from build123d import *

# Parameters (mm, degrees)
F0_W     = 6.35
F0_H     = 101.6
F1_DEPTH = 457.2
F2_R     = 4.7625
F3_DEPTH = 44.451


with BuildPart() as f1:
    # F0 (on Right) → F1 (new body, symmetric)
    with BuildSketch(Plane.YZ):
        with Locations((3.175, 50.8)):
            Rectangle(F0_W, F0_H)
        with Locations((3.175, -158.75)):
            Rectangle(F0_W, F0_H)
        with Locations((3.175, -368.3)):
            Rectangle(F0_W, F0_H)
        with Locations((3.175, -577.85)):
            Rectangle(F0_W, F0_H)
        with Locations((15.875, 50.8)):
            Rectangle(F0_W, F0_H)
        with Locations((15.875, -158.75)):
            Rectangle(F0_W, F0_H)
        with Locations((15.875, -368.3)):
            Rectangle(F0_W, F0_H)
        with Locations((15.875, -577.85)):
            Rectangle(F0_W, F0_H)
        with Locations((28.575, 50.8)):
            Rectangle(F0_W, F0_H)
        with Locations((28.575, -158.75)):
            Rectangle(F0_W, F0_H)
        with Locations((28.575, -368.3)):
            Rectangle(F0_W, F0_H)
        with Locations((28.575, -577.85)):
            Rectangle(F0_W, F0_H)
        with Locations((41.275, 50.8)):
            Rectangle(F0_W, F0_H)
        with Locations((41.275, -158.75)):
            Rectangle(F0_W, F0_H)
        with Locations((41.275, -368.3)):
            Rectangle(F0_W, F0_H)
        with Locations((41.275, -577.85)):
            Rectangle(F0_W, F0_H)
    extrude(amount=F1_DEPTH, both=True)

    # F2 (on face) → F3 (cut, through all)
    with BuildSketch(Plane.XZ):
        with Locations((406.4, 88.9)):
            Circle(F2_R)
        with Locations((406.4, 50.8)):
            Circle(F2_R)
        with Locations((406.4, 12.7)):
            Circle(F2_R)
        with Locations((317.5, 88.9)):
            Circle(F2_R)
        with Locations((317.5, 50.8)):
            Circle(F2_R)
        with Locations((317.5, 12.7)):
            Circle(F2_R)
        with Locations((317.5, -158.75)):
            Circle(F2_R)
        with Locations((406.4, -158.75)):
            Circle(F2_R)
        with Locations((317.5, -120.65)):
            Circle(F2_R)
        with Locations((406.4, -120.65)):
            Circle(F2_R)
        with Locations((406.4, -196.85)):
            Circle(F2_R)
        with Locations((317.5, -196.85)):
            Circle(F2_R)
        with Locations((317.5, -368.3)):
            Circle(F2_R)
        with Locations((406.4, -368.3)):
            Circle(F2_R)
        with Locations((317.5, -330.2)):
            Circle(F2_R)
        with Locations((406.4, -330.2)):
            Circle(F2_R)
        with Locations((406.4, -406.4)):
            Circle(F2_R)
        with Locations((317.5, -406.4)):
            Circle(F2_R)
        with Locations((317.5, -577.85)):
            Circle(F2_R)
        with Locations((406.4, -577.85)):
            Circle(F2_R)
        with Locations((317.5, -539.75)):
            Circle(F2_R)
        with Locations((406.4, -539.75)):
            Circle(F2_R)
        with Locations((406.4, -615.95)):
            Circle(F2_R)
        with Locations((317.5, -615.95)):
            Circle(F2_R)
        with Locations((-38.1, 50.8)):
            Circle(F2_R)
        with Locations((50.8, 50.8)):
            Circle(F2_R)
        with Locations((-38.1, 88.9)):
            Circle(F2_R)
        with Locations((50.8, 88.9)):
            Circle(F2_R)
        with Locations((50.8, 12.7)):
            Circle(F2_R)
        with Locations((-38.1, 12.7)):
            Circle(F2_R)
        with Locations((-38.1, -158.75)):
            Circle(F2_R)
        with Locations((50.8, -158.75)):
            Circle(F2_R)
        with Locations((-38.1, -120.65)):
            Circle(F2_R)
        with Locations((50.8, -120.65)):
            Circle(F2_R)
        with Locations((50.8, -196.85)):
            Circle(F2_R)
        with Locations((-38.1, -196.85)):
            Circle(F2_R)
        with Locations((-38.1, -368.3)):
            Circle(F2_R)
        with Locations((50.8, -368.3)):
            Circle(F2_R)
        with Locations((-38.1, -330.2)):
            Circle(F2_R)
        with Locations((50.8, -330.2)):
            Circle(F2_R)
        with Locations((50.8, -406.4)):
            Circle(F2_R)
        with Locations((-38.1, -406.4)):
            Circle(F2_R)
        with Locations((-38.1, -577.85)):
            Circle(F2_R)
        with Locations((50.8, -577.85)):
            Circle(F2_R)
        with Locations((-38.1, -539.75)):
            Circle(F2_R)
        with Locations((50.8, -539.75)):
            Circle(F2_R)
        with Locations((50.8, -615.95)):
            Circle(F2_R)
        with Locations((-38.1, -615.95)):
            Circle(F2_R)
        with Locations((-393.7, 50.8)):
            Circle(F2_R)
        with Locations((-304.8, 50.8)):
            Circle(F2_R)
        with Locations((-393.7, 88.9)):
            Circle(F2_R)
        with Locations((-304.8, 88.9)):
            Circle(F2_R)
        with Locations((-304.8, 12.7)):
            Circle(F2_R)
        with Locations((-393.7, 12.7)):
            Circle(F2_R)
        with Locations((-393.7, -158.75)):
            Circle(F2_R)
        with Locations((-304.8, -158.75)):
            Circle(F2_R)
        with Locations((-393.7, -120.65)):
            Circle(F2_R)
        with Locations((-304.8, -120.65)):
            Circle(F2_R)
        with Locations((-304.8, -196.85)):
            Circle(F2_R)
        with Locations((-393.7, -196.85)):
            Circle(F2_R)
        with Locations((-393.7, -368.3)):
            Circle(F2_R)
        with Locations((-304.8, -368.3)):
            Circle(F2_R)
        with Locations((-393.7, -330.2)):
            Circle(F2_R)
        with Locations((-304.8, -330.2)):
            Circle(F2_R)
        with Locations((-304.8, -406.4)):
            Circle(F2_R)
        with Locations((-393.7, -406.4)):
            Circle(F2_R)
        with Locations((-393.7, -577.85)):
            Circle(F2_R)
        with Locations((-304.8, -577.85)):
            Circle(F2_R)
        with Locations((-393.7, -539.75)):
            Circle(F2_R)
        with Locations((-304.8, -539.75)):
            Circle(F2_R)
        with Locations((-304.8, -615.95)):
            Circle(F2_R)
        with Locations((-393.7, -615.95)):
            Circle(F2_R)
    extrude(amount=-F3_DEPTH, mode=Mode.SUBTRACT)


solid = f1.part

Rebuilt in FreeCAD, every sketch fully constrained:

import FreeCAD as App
import Part
import Sketcher

V = App.Vector
Q = App.Units.Quantity

doc = App.newDocument("Part")
body = doc.addObject("PartDesign::Body", "Body")
body.AllowCompound = True

sketch1 = doc.addObject("Sketcher::SketchObject", "Sketch")
body.addObject(sketch1)
sketch1.AttachmentSupport = (doc.YZ_Plane, [""])
sketch1.MapMode = "FlatFace"
sketch1.addGeometry(Part.LineSegment(V(0, 102, 0), V(0, 0, 0)), False)
sketch1.addGeometry(Part.LineSegment(V(0, 0, 0), V(6, 0, 0)), False)
sketch1.addGeometry(Part.LineSegment(V(6, 0, 0), V(6, 102, 0)), False)
sketch1.addGeometry(Part.LineSegment(V(6, 102, 0), V(0, 102, 0)), False)
sketch1.addGeometry(Part.LineSegment(V(0, -108, 0), V(0, -210, 0)), False)
sketch1.addGeometry(Part.LineSegment(V(0, -210, 0), V(6, -210, 0)), False)
sketch1.addGeometry(Part.LineSegment(V(6, -210, 0), V(6, -108, 0)), False)
sketch1.addGeometry(Part.LineSegment(V(6, -108, 0), V(0, -108, 0)), False)
sketch1.addGeometry(Part.LineSegment(V(0, -318, 0), V(0, -419, 0)), False)
sketch1.addGeometry(Part.LineSegment(V(0, -419, 0), V(6, -419, 0)), False)
sketch1.addGeometry(Part.LineSegment(V(6, -419, 0), V(6, -318, 0)), False)
sketch1.addGeometry(Part.LineSegment(V(6, -318, 0), V(0, -318, 0)), False)
sketch1.addGeometry(Part.LineSegment(V(0, -527, 0), V(0, -629, 0)), False)
sketch1.addGeometry(Part.LineSegment(V(0, -629, 0), V(6, -629, 0)), False)
sketch1.addGeometry(Part.LineSegment(V(6, -629, 0), V(6, -527, 0)), False)
sketch1.addGeometry(Part.LineSegment(V(6, -527, 0), V(0, -527, 0)), False)
sketch1.addGeometry(Part.LineSegment(V(13, 102, 0), V(13, 0, 0)), False)
sketch1.addGeometry(Part.LineSegment(V(13, 0, 0), V(19, 0, 0)), False)
sketch1.addGeometry(Part.LineSegment(V(19, 0, 0), V(19, 102, 0)), False)
sketch1.addGeometry(Part.LineSegment(V(19, 102, 0), V(13, 102, 0)), False)
sketch1.addGeometry(Part.LineSegment(V(13, -108, 0), V(13, -210, 0)), False)
sketch1.addGeometry(Part.LineSegment(V(13, -210, 0), V(19, -210, 0)), False)
sketch1.addGeometry(Part.LineSegment(V(19, -210, 0), V(19, -108, 0)), False)
sketch1.addGeometry(Part.LineSegment(V(19, -108, 0), V(13, -108, 0)), False)
sketch1.addGeometry(Part.LineSegment(V(13, -318, 0), V(13, -419, 0)), False)
sketch1.addGeometry(Part.LineSegment(V(13, -419, 0), V(19, -419, 0)), False)
sketch1.addGeometry(Part.LineSegment(V(19, -419, 0), V(19, -318, 0)), False)
sketch1.addGeometry(Part.LineSegment(V(19, -318, 0), V(13, -318, 0)), False)
sketch1.addGeometry(Part.LineSegment(V(13, -527, 0), V(13, -629, 0)), False)
sketch1.addGeometry(Part.LineSegment(V(13, -629, 0), V(19, -629, 0)), False)
sketch1.addGeometry(Part.LineSegment(V(19, -629, 0), V(19, -527, 0)), False)
sketch1.addGeometry(Part.LineSegment(V(19, -527, 0), V(13, -527, 0)), False)
sketch1.addGeometry(Part.LineSegment(V(25, 102, 0), V(25, 0, 0)), False)
sketch1.addGeometry(Part.LineSegment(V(25, 0, 0), V(32, 0, 0)), False)
sketch1.addGeometry(Part.LineSegment(V(32, 0, 0), V(32, 102, 0)), False)
sketch1.addGeometry(Part.LineSegment(V(32, 102, 0), V(25, 102, 0)), False)
sketch1.addGeometry(Part.LineSegment(V(25, -108, 0), V(25, -210, 0)), False)
sketch1.addGeometry(Part.LineSegment(V(25, -210, 0), V(32, -210, 0)), False)
sketch1.addGeometry(Part.LineSegment(V(32, -210, 0), V(32, -108, 0)), False)
sketch1.addGeometry(Part.LineSegment(V(32, -108, 0), V(25, -108, 0)), False)
sketch1.addGeometry(Part.LineSegment(V(25, -318, 0), V(25, -419, 0)), False)
sketch1.addGeometry(Part.LineSegment(V(25, -419, 0), V(32, -419, 0)), False)
sketch1.addGeometry(Part.LineSegment(V(32, -419, 0), V(32, -318, 0)), False)
sketch1.addGeometry(Part.LineSegment(V(32, -318, 0), V(25, -318, 0)), False)
sketch1.addGeometry(Part.LineSegment(V(25, -527, 0), V(25, -629, 0)), False)
sketch1.addGeometry(Part.LineSegment(V(25, -629, 0), V(32, -629, 0)), False)
sketch1.addGeometry(Part.LineSegment(V(32, -629, 0), V(32, -527, 0)), False)
sketch1.addGeometry(Part.LineSegment(V(32, -527, 0), V(25, -527, 0)), False)
sketch1.addGeometry(Part.LineSegment(V(38, 102, 0), V(38, 0, 0)), False)
sketch1.addGeometry(Part.LineSegment(V(38, 0, 0), V(44, 0, 0)), False)
sketch1.addGeometry(Part.LineSegment(V(44, 0, 0), V(44, 102, 0)), False)
sketch1.addGeometry(Part.LineSegment(V(44, 102, 0), V(38, 102, 0)), False)
sketch1.addGeometry(Part.LineSegment(V(38, -108, 0), V(38, -210, 0)), False)
sketch1.addGeometry(Part.LineSegment(V(38, -210, 0), V(44, -210, 0)), False)
sketch1.addGeometry(Part.LineSegment(V(44, -210, 0), V(44, -108, 0)), False)
sketch1.addGeometry(Part.LineSegment(V(44, -108, 0), V(38, -108, 0)), False)
sketch1.addGeometry(Part.LineSegment(V(38, -318, 0), V(38, -419, 0)), False)
sketch1.addGeometry(Part.LineSegment(V(38, -419, 0), V(44, -419, 0)), False)
sketch1.addGeometry(Part.LineSegment(V(44, -419, 0), V(44, -318, 0)), False)
sketch1.addGeometry(Part.LineSegment(V(44, -318, 0), V(38, -318, 0)), False)
sketch1.addGeometry(Part.LineSegment(V(38, -527, 0), V(38, -629, 0)), False)
sketch1.addGeometry(Part.LineSegment(V(38, -629, 0), V(44, -629, 0)), False)
sketch1.addGeometry(Part.LineSegment(V(44, -629, 0), V(44, -527, 0)), False)
sketch1.addGeometry(Part.LineSegment(V(44, -527, 0), V(38, -527, 0)), False)
sketch1.addConstraint(Sketcher.Constraint("Coincident", 0, 2, 1, 1))
sketch1.addConstraint(Sketcher.Constraint("Coincident", 1, 2, 2, 1))
sketch1.addConstraint(Sketcher.Constraint("Coincident", 2, 2, 3, 1))
sketch1.addConstraint(Sketcher.Constraint("Coincident", 3, 2, 0, 1))
sketch1.addConstraint(Sketcher.Constraint("Coincident", 4, 2, 5, 1))
sketch1.addConstraint(Sketcher.Constraint("Coincident", 5, 2, 6, 1))
sketch1.addConstraint(Sketcher.Constraint("Coincident", 6, 2, 7, 1))
sketch1.addConstraint(Sketcher.Constraint("Coincident", 7, 2, 4, 1))
sketch1.addConstraint(Sketcher.Constraint("Coincident", 8, 2, 9, 1))
sketch1.addConstraint(Sketcher.Constraint("Coincident", 9, 2, 10, 1))
sketch1.addConstraint(Sketcher.Constraint("Coincident", 10, 2, 11, 1))
sketch1.addConstraint(Sketcher.Constraint("Coincident", 11, 2, 8, 1))
sketch1.addConstraint(Sketcher.Constraint("Coincident", 12, 2, 13, 1))
sketch1.addConstraint(Sketcher.Constraint("Coincident", 13, 2, 14, 1))
sketch1.addConstraint(Sketcher.Constraint("Coincident", 14, 2, 15, 1))
sketch1.addConstraint(Sketcher.Constraint("Coincident", 15, 2, 12, 1))
sketch1.addConstraint(Sketcher.Constraint("Coincident", 16, 2, 17, 1))
sketch1.addConstraint(Sketcher.Constraint("Coincident", 17, 2, 18, 1))
sketch1.addConstraint(Sketcher.Constraint("Coincident", 18, 2, 19, 1))
sketch1.addConstraint(Sketcher.Constraint("Coincident", 19, 2, 16, 1))
sketch1.addConstraint(Sketcher.Constraint("Coincident", 20, 2, 21, 1))
sketch1.addConstraint(Sketcher.Constraint("Coincident", 21, 2, 22, 1))
sketch1.addConstraint(Sketcher.Constraint("Coincident", 22, 2, 23, 1))
sketch1.addConstraint(Sketcher.Constraint("Coincident", 23, 2, 20, 1))
sketch1.addConstraint(Sketcher.Constraint("Coincident", 24, 2, 25, 1))
sketch1.addConstraint(Sketcher.Constraint("Coincident", 25, 2, 26, 1))
sketch1.addConstraint(Sketcher.Constraint("Coincident", 26, 2, 27, 1))
sketch1.addConstraint(Sketcher.Constraint("Coincident", 27, 2, 24, 1))
sketch1.addConstraint(Sketcher.Constraint("Coincident", 28, 2, 29, 1))
sketch1.addConstraint(Sketcher.Constraint("Coincident", 29, 2, 30, 1))
sketch1.addConstraint(Sketcher.Constraint("Coincident", 30, 2, 31, 1))
sketch1.addConstraint(Sketcher.Constraint("Coincident", 31, 2, 28, 1))
sketch1.addConstraint(Sketcher.Constraint("Coincident", 32, 2, 33, 1))
sketch1.addConstraint(Sketcher.Constraint("Coincident", 33, 2, 34, 1))
sketch1.addConstraint(Sketcher.Constraint("Coincident", 34, 2, 35, 1))
sketch1.addConstraint(Sketcher.Constraint("Coincident", 35, 2, 32, 1))
sketch1.addConstraint(Sketcher.Constraint("Coincident", 36, 2, 37, 1))
sketch1.addConstraint(Sketcher.Constraint("Coincident", 37, 2, 38, 1))
sketch1.addConstraint(Sketcher.Constraint("Coincident", 38, 2, 39, 1))
sketch1.addConstraint(Sketcher.Constraint("Coincident", 39, 2, 36, 1))
sketch1.addConstraint(Sketcher.Constraint("Coincident", 40, 2, 41, 1))
sketch1.addConstraint(Sketcher.Constraint("Coincident", 41, 2, 42, 1))
sketch1.addConstraint(Sketcher.Constraint("Coincident", 42, 2, 43, 1))
sketch1.addConstraint(Sketcher.Constraint("Coincident", 43, 2, 40, 1))
sketch1.addConstraint(Sketcher.Constraint("Coincident", 44, 2, 45, 1))
sketch1.addConstraint(Sketcher.Constraint("Coincident", 45, 2, 46, 1))
sketch1.addConstraint(Sketcher.Constraint("Coincident", 46, 2, 47, 1))
sketch1.addConstraint(Sketcher.Constraint("Coincident", 47, 2, 44, 1))
sketch1.addConstraint(Sketcher.Constraint("Coincident", 48, 2, 49, 1))
sketch1.addConstraint(Sketcher.Constraint("Coincident", 49, 2, 50, 1))
sketch1.addConstraint(Sketcher.Constraint("Coincident", 50, 2, 51, 1))
sketch1.addConstraint(Sketcher.Constraint("Coincident", 51, 2, 48, 1))
sketch1.addConstraint(Sketcher.Constraint("Coincident", 52, 2, 53, 1))
sketch1.addConstraint(Sketcher.Constraint("Coincident", 53, 2, 54, 1))
sketch1.addConstraint(Sketcher.Constraint("Coincident", 54, 2, 55, 1))
sketch1.addConstraint(Sketcher.Constraint("Coincident", 55, 2, 52, 1))
sketch1.addConstraint(Sketcher.Constraint("Coincident", 56, 2, 57, 1))
sketch1.addConstraint(Sketcher.Constraint("Coincident", 57, 2, 58, 1))
sketch1.addConstraint(Sketcher.Constraint("Coincident", 58, 2, 59, 1))
sketch1.addConstraint(Sketcher.Constraint("Coincident", 59, 2, 56, 1))
sketch1.addConstraint(Sketcher.Constraint("Coincident", 60, 2, 61, 1))
sketch1.addConstraint(Sketcher.Constraint("Coincident", 61, 2, 62, 1))
sketch1.addConstraint(Sketcher.Constraint("Coincident", 62, 2, 63, 1))
sketch1.addConstraint(Sketcher.Constraint("Coincident", 63, 2, 60, 1))
sketch1.addConstraint(Sketcher.Constraint("Vertical", 0))
sketch1.addConstraint(Sketcher.Constraint("Horizontal", 1))
sketch1.addConstraint(Sketcher.Constraint("Vertical", 2))
sketch1.addConstraint(Sketcher.Constraint("Horizontal", 3))
sketch1.addConstraint(Sketcher.Constraint("Vertical", 4))
sketch1.addConstraint(Sketcher.Constraint("Horizontal", 5))
sketch1.addConstraint(Sketcher.Constraint("Vertical", 6))
sketch1.addConstraint(Sketcher.Constraint("Horizontal", 7))
sketch1.addConstraint(Sketcher.Constraint("Vertical", 8))
sketch1.addConstraint(Sketcher.Constraint("Horizontal", 9))
sketch1.addConstraint(Sketcher.Constraint("Vertical", 10))
sketch1.addConstraint(Sketcher.Constraint("Horizontal", 11))
sketch1.addConstraint(Sketcher.Constraint("Vertical", 12))
sketch1.addConstraint(Sketcher.Constraint("Horizontal", 13))
sketch1.addConstraint(Sketcher.Constraint("Vertical", 14))
sketch1.addConstraint(Sketcher.Constraint("Horizontal", 15))
sketch1.addConstraint(Sketcher.Constraint("Vertical", 16))
sketch1.addConstraint(Sketcher.Constraint("Horizontal", 17))
sketch1.addConstraint(Sketcher.Constraint("Vertical", 18))
sketch1.addConstraint(Sketcher.Constraint("Horizontal", 19))
sketch1.addConstraint(Sketcher.Constraint("Vertical", 20))
sketch1.addConstraint(Sketcher.Constraint("Horizontal", 21))
sketch1.addConstraint(Sketcher.Constraint("Vertical", 22))
sketch1.addConstraint(Sketcher.Constraint("Horizontal", 23))
sketch1.addConstraint(Sketcher.Constraint("Vertical", 24))
sketch1.addConstraint(Sketcher.Constraint("Horizontal", 25))
sketch1.addConstraint(Sketcher.Constraint("Vertical", 26))
sketch1.addConstraint(Sketcher.Constraint("Horizontal", 27))
sketch1.addConstraint(Sketcher.Constraint("Vertical", 28))
sketch1.addConstraint(Sketcher.Constraint("Horizontal", 29))
sketch1.addConstraint(Sketcher.Constraint("Vertical", 30))
sketch1.addConstraint(Sketcher.Constraint("Horizontal", 31))
sketch1.addConstraint(Sketcher.Constraint("Vertical", 32))
sketch1.addConstraint(Sketcher.Constraint("Horizontal", 33))
sketch1.addConstraint(Sketcher.Constraint("Vertical", 34))
sketch1.addConstraint(Sketcher.Constraint("Horizontal", 35))
sketch1.addConstraint(Sketcher.Constraint("Vertical", 36))
sketch1.addConstraint(Sketcher.Constraint("Horizontal", 37))
sketch1.addConstraint(Sketcher.Constraint("Vertical", 38))
sketch1.addConstraint(Sketcher.Constraint("Horizontal", 39))
sketch1.addConstraint(Sketcher.Constraint("Vertical", 40))
sketch1.addConstraint(Sketcher.Constraint("Horizontal", 41))
sketch1.addConstraint(Sketcher.Constraint("Vertical", 42))
sketch1.addConstraint(Sketcher.Constraint("Horizontal", 43))
sketch1.addConstraint(Sketcher.Constraint("Vertical", 44))
sketch1.addConstraint(Sketcher.Constraint("Horizontal", 45))
sketch1.addConstraint(Sketcher.Constraint("Vertical", 46))
sketch1.addConstraint(Sketcher.Constraint("Horizontal", 47))
sketch1.addConstraint(Sketcher.Constraint("Vertical", 48))
sketch1.addConstraint(Sketcher.Constraint("Horizontal", 49))
sketch1.addConstraint(Sketcher.Constraint("Vertical", 50))
sketch1.addConstraint(Sketcher.Constraint("Horizontal", 51))
sketch1.addConstraint(Sketcher.Constraint("Vertical", 52))
sketch1.addConstraint(Sketcher.Constraint("Horizontal", 53))
sketch1.addConstraint(Sketcher.Constraint("Vertical", 54))
sketch1.addConstraint(Sketcher.Constraint("Horizontal", 55))
sketch1.addConstraint(Sketcher.Constraint("Vertical", 56))
sketch1.addConstraint(Sketcher.Constraint("Horizontal", 57))
sketch1.addConstraint(Sketcher.Constraint("Vertical", 58))
sketch1.addConstraint(Sketcher.Constraint("Horizontal", 59))
sketch1.addConstraint(Sketcher.Constraint("Vertical", 60))
sketch1.addConstraint(Sketcher.Constraint("Horizontal", 61))
sketch1.addConstraint(Sketcher.Constraint("Vertical", 62))
sketch1.addConstraint(Sketcher.Constraint("Horizontal", 63))
sketch1.addConstraint(Sketcher.Constraint("Coincident", 0, 2, -1, 1))
sketch1.addConstraint(Sketcher.Constraint("PointOnObject", 4, 2, -2))
sketch1.addConstraint(Sketcher.Constraint("PointOnObject", 8, 2, -2))
sketch1.addConstraint(Sketcher.Constraint("PointOnObject", 12, 2, -2))
sketch1.addConstraint(Sketcher.Constraint("PointOnObject", 16, 2, -1))
sketch1.addConstraint(Sketcher.Constraint("PointOnObject", 32, 2, -1))
sketch1.addConstraint(Sketcher.Constraint("PointOnObject", 48, 2, -1))
sketch1.addConstraint(Sketcher.Constraint("Horizontal", 3, 2, 18, 2))
sketch1.addConstraint(Sketcher.Constraint("Horizontal", 5, 2, 20, 2))
sketch1.addConstraint(Sketcher.Constraint("Horizontal", 7, 2, 22, 2))
sketch1.addConstraint(Sketcher.Constraint("Horizontal", 9, 2, 24, 2))
sketch1.addConstraint(Sketcher.Constraint("Horizontal", 11, 2, 26, 2))
sketch1.addConstraint(Sketcher.Constraint("Horizontal", 13, 2, 28, 2))
sketch1.addConstraint(Sketcher.Constraint("Horizontal", 15, 2, 30, 2))
sketch1.addConstraint(Sketcher.Constraint("Horizontal", 19, 2, 34, 2))
sketch1.addConstraint(Sketcher.Constraint("Horizontal", 21, 2, 36, 2))
sketch1.addConstraint(Sketcher.Constraint("Horizontal", 23, 2, 38, 2))
sketch1.addConstraint(Sketcher.Constraint("Horizontal", 25, 2, 40, 2))
sketch1.addConstraint(Sketcher.Constraint("Horizontal", 27, 2, 42, 2))
sketch1.addConstraint(Sketcher.Constraint("Horizontal", 29, 2, 44, 2))
sketch1.addConstraint(Sketcher.Constraint("Horizontal", 31, 2, 46, 2))
sketch1.addConstraint(Sketcher.Constraint("Horizontal", 35, 2, 50, 2))
sketch1.addConstraint(Sketcher.Constraint("Horizontal", 37, 2, 52, 2))
sketch1.addConstraint(Sketcher.Constraint("Horizontal", 39, 2, 54, 2))
sketch1.addConstraint(Sketcher.Constraint("Horizontal", 41, 2, 56, 2))
sketch1.addConstraint(Sketcher.Constraint("Horizontal", 43, 2, 58, 2))
sketch1.addConstraint(Sketcher.Constraint("Horizontal", 45, 2, 60, 2))
sketch1.addConstraint(Sketcher.Constraint("Horizontal", 47, 2, 62, 2))
sketch1.addConstraint(Sketcher.Constraint("Vertical", 2, 2, 5, 2))
sketch1.addConstraint(Sketcher.Constraint("Vertical", 6, 2, 9, 2))
sketch1.addConstraint(Sketcher.Constraint("Vertical", 10, 2, 13, 2))
sketch1.addConstraint(Sketcher.Constraint("Vertical", 19, 2, 20, 2))
sketch1.addConstraint(Sketcher.Constraint("Vertical", 18, 2, 21, 2))
sketch1.addConstraint(Sketcher.Constraint("Vertical", 23, 2, 24, 2))
sketch1.addConstraint(Sketcher.Constraint("Vertical", 22, 2, 25, 2))
sketch1.addConstraint(Sketcher.Constraint("Vertical", 27, 2, 28, 2))
sketch1.addConstraint(Sketcher.Constraint("Vertical", 26, 2, 29, 2))
sketch1.addConstraint(Sketcher.Constraint("Vertical", 35, 2, 36, 2))
sketch1.addConstraint(Sketcher.Constraint("Vertical", 34, 2, 37, 2))
sketch1.addConstraint(Sketcher.Constraint("Vertical", 39, 2, 40, 2))
sketch1.addConstraint(Sketcher.Constraint("Vertical", 38, 2, 41, 2))
sketch1.addConstraint(Sketcher.Constraint("Vertical", 43, 2, 44, 2))
sketch1.addConstraint(Sketcher.Constraint("Vertical", 42, 2, 45, 2))
sketch1.addConstraint(Sketcher.Constraint("Vertical", 51, 2, 52, 2))
sketch1.addConstraint(Sketcher.Constraint("Vertical", 50, 2, 53, 2))
sketch1.addConstraint(Sketcher.Constraint("Vertical", 55, 2, 56, 2))
sketch1.addConstraint(Sketcher.Constraint("Vertical", 54, 2, 57, 2))
sketch1.addConstraint(Sketcher.Constraint("Vertical", 59, 2, 60, 2))
sketch1.addConstraint(Sketcher.Constraint("Vertical", 58, 2, 61, 2))
sketch1.addConstraint(Sketcher.Constraint("Equal", 15, 17))
sketch1.addConstraint(Sketcher.Constraint("Equal", 31, 33))
sketch1.addConstraint(Sketcher.Constraint("Equal", 47, 49))
sketch1.addConstraint(Sketcher.Constraint("Equal", 2, 4))
sketch1.addConstraint(Sketcher.Constraint("Equal", 6, 8))
sketch1.addConstraint(Sketcher.Constraint("Equal", 10, 12))
sketch1.addConstraint(Sketcher.Constraint("DistanceY", 0, 2, 0, 1, Q("4 in")))
sketch1.addConstraint(Sketcher.Constraint("DistanceX", -1, 1, 32, 2, Q("1 in")))
sketch1.addConstraint(Sketcher.Constraint("DistanceX", 1, 1, 1, 2, Q("0.25 in")))
sketch1.addConstraint(Sketcher.Constraint("DistanceY", 8, 2, -1, 1, Q("16.5 in")))
sketch1.addConstraint(Sketcher.Constraint("DistanceX", -1, 1, 16, 2, Q("0.5 in")))
sketch1.addConstraint(Sketcher.Constraint("DistanceX", -1, 1, 48, 2, Q("1.5 in")))
sketch1.addConstraint(Sketcher.Constraint("DistanceY", 4, 2, -1, 1, Q("8.25 in")))
sketch1.addConstraint(Sketcher.Constraint("DistanceY", 12, 2, -1, 1, Q("24.75 in")))
pad1 = doc.addObject("PartDesign::Pad", "Pad")
body.addObject(pad1)
pad1.Profile = sketch1
pad1.Length = Q("36 in")
pad1.Midplane = True

sketch2 = doc.addObject("Sketcher::SketchObject", "Sketch001")
body.addObject(sketch2)
sketch2.AttachmentSupport = (doc.XZ_Plane, [""])
sketch2.MapMode = "FlatFace"
sketch2.addGeometry(Part.Circle(V(406.4, 88.9, 0), V(0, 0, 1), 4.8), False)
sketch2.addGeometry(Part.Circle(V(406.4, 50.8, 0), V(0, 0, 1), 4.8), False)
sketch2.addGeometry(Part.Circle(V(406.4, 12.7, 0), V(0, 0, 1), 4.8), False)
sketch2.addGeometry(Part.Circle(V(317.5, 88.9, 0), V(0, 0, 1), 4.8), False)
sketch2.addGeometry(Part.Circle(V(317.5, 50.8, 0), V(0, 0, 1), 4.8), False)
sketch2.addGeometry(Part.Circle(V(317.5, 12.7, 0), V(0, 0, 1), 4.8), False)
sketch2.addGeometry(Part.Circle(V(317.5, -158.8, 0), V(0, 0, 1), 4.8), False)
sketch2.addGeometry(Part.Circle(V(406.4, -158.8, 0), V(0, 0, 1), 4.8), False)
sketch2.addGeometry(Part.Circle(V(317.5, -120.7, 0), V(0, 0, 1), 4.8), False)
sketch2.addGeometry(Part.Circle(V(406.4, -120.7, 0), V(0, 0, 1), 4.8), False)
sketch2.addGeometry(Part.Circle(V(406.4, -196.8, 0), V(0, 0, 1), 4.8), False)
sketch2.addGeometry(Part.Circle(V(317.5, -196.8, 0), V(0, 0, 1), 4.8), False)
sketch2.addGeometry(Part.Circle(V(317.5, -368.3, 0), V(0, 0, 1), 4.8), False)
sketch2.addGeometry(Part.Circle(V(406.4, -368.3, 0), V(0, 0, 1), 4.8), False)
sketch2.addGeometry(Part.Circle(V(317.5, -330.2, 0), V(0, 0, 1), 4.8), False)
sketch2.addGeometry(Part.Circle(V(406.4, -330.2, 0), V(0, 0, 1), 4.8), False)
sketch2.addGeometry(Part.Circle(V(406.4, -406.4, 0), V(0, 0, 1), 4.8), False)
sketch2.addGeometry(Part.Circle(V(317.5, -406.4, 0), V(0, 0, 1), 4.8), False)
sketch2.addGeometry(Part.Circle(V(317.5, -577.9, 0), V(0, 0, 1), 4.8), False)
sketch2.addGeometry(Part.Circle(V(406.4, -577.9, 0), V(0, 0, 1), 4.8), False)
sketch2.addGeometry(Part.Circle(V(317.5, -539.8, 0), V(0, 0, 1), 4.8), False)
sketch2.addGeometry(Part.Circle(V(406.4, -539.8, 0), V(0, 0, 1), 4.8), False)
sketch2.addGeometry(Part.Circle(V(406.4, -616, 0), V(0, 0, 1), 4.8), False)
sketch2.addGeometry(Part.Circle(V(317.5, -616, 0), V(0, 0, 1), 4.8), False)
sketch2.addGeometry(Part.Circle(V(-38.1, 50.8, 0), V(0, 0, 1), 4.8), False)
sketch2.addGeometry(Part.Circle(V(50.8, 50.8, 0), V(0, 0, 1), 4.8), False)
sketch2.addGeometry(Part.Circle(V(-38.1, 88.9, 0), V(0, 0, 1), 4.8), False)
sketch2.addGeometry(Part.Circle(V(50.8, 88.9, 0), V(0, 0, 1), 4.8), False)
sketch2.addGeometry(Part.Circle(V(50.8, 12.7, 0), V(0, 0, 1), 4.8), False)
sketch2.addGeometry(Part.Circle(V(-38.1, 12.7, 0), V(0, 0, 1), 4.8), False)
sketch2.addGeometry(Part.Circle(V(-38.1, -158.8, 0), V(0, 0, 1), 4.8), False)
sketch2.addGeometry(Part.Circle(V(50.8, -158.8, 0), V(0, 0, 1), 4.8), False)
sketch2.addGeometry(Part.Circle(V(-38.1, -120.7, 0), V(0, 0, 1), 4.8), False)
sketch2.addGeometry(Part.Circle(V(50.8, -120.7, 0), V(0, 0, 1), 4.8), False)
sketch2.addGeometry(Part.Circle(V(50.8, -196.8, 0), V(0, 0, 1), 4.8), False)
sketch2.addGeometry(Part.Circle(V(-38.1, -196.8, 0), V(0, 0, 1), 4.8), False)
sketch2.addGeometry(Part.Circle(V(-38.1, -368.3, 0), V(0, 0, 1), 4.8), False)
sketch2.addGeometry(Part.Circle(V(50.8, -368.3, 0), V(0, 0, 1), 4.8), False)
sketch2.addGeometry(Part.Circle(V(-38.1, -330.2, 0), V(0, 0, 1), 4.8), False)
sketch2.addGeometry(Part.Circle(V(50.8, -330.2, 0), V(0, 0, 1), 4.8), False)
sketch2.addGeometry(Part.Circle(V(50.8, -406.4, 0), V(0, 0, 1), 4.8), False)
sketch2.addGeometry(Part.Circle(V(-38.1, -406.4, 0), V(0, 0, 1), 4.8), False)
sketch2.addGeometry(Part.Circle(V(-38.1, -577.9, 0), V(0, 0, 1), 4.8), False)
sketch2.addGeometry(Part.Circle(V(50.8, -577.9, 0), V(0, 0, 1), 4.8), False)
sketch2.addGeometry(Part.Circle(V(-38.1, -539.8, 0), V(0, 0, 1), 4.8), False)
sketch2.addGeometry(Part.Circle(V(50.8, -539.8, 0), V(0, 0, 1), 4.8), False)
sketch2.addGeometry(Part.Circle(V(50.8, -616, 0), V(0, 0, 1), 4.8), False)
sketch2.addGeometry(Part.Circle(V(-38.1, -616, 0), V(0, 0, 1), 4.8), False)
sketch2.addGeometry(Part.Circle(V(-393.7, 50.8, 0), V(0, 0, 1), 4.8), False)
sketch2.addGeometry(Part.Circle(V(-304.8, 50.8, 0), V(0, 0, 1), 4.8), False)
sketch2.addGeometry(Part.Circle(V(-393.7, 88.9, 0), V(0, 0, 1), 4.8), False)
sketch2.addGeometry(Part.Circle(V(-304.8, 88.9, 0), V(0, 0, 1), 4.8), False)
sketch2.addGeometry(Part.Circle(V(-304.8, 12.7, 0), V(0, 0, 1), 4.8), False)
sketch2.addGeometry(Part.Circle(V(-393.7, 12.7, 0), V(0, 0, 1), 4.8), False)
sketch2.addGeometry(Part.Circle(V(-393.7, -158.8, 0), V(0, 0, 1), 4.8), False)
sketch2.addGeometry(Part.Circle(V(-304.8, -158.8, 0), V(0, 0, 1), 4.8), False)
sketch2.addGeometry(Part.Circle(V(-393.7, -120.7, 0), V(0, 0, 1), 4.8), False)
sketch2.addGeometry(Part.Circle(V(-304.8, -120.7, 0), V(0, 0, 1), 4.8), False)
sketch2.addGeometry(Part.Circle(V(-304.8, -196.8, 0), V(0, 0, 1), 4.8), False)
sketch2.addGeometry(Part.Circle(V(-393.7, -196.8, 0), V(0, 0, 1), 4.8), False)
sketch2.addGeometry(Part.Circle(V(-393.7, -368.3, 0), V(0, 0, 1), 4.8), False)
sketch2.addGeometry(Part.Circle(V(-304.8, -368.3, 0), V(0, 0, 1), 4.8), False)
sketch2.addGeometry(Part.Circle(V(-393.7, -330.2, 0), V(0, 0, 1), 4.8), False)
sketch2.addGeometry(Part.Circle(V(-304.8, -330.2, 0), V(0, 0, 1), 4.8), False)
sketch2.addGeometry(Part.Circle(V(-304.8, -406.4, 0), V(0, 0, 1), 4.8), False)
sketch2.addGeometry(Part.Circle(V(-393.7, -406.4, 0), V(0, 0, 1), 4.8), False)
sketch2.addGeometry(Part.Circle(V(-393.7, -577.9, 0), V(0, 0, 1), 4.8), False)
sketch2.addGeometry(Part.Circle(V(-304.8, -577.9, 0), V(0, 0, 1), 4.8), False)
sketch2.addGeometry(Part.Circle(V(-393.7, -539.8, 0), V(0, 0, 1), 4.8), False)
sketch2.addGeometry(Part.Circle(V(-304.8, -539.8, 0), V(0, 0, 1), 4.8), False)
sketch2.addGeometry(Part.Circle(V(-304.8, -616, 0), V(0, 0, 1), 4.8), False)
sketch2.addGeometry(Part.Circle(V(-393.7, -616, 0), V(0, 0, 1), 4.8), False)
sketch2.addConstraint(Sketcher.Constraint("Equal", 0, 1))
sketch2.addConstraint(Sketcher.Constraint("Equal", 1, 2))
sketch2.addConstraint(Sketcher.Constraint("Equal", 2, 3))
sketch2.addConstraint(Sketcher.Constraint("Equal", 3, 4))
sketch2.addConstraint(Sketcher.Constraint("Equal", 4, 5))
sketch2.addConstraint(Sketcher.Constraint("Equal", 5, 6))
sketch2.addConstraint(Sketcher.Constraint("Equal", 6, 7))
sketch2.addConstraint(Sketcher.Constraint("Equal", 7, 8))
sketch2.addConstraint(Sketcher.Constraint("Equal", 8, 9))
sketch2.addConstraint(Sketcher.Constraint("Equal", 9, 10))
sketch2.addConstraint(Sketcher.Constraint("Equal", 10, 11))
sketch2.addConstraint(Sketcher.Constraint("Equal", 11, 12))
sketch2.addConstraint(Sketcher.Constraint("Equal", 12, 13))
sketch2.addConstraint(Sketcher.Constraint("Equal", 13, 14))
sketch2.addConstraint(Sketcher.Constraint("Equal", 14, 15))
sketch2.addConstraint(Sketcher.Constraint("Equal", 15, 16))
sketch2.addConstraint(Sketcher.Constraint("Equal", 16, 17))
sketch2.addConstraint(Sketcher.Constraint("Equal", 17, 18))
sketch2.addConstraint(Sketcher.Constraint("Equal", 18, 19))
sketch2.addConstraint(Sketcher.Constraint("Equal", 19, 20))
sketch2.addConstraint(Sketcher.Constraint("Equal", 20, 21))
sketch2.addConstraint(Sketcher.Constraint("Equal", 21, 22))
sketch2.addConstraint(Sketcher.Constraint("Equal", 22, 23))
sketch2.addConstraint(Sketcher.Constraint("Equal", 23, 24))
sketch2.addConstraint(Sketcher.Constraint("Equal", 24, 25))
sketch2.addConstraint(Sketcher.Constraint("Equal", 25, 26))
sketch2.addConstraint(Sketcher.Constraint("Equal", 26, 27))
sketch2.addConstraint(Sketcher.Constraint("Equal", 27, 28))
sketch2.addConstraint(Sketcher.Constraint("Equal", 28, 29))
sketch2.addConstraint(Sketcher.Constraint("Equal", 29, 30))
sketch2.addConstraint(Sketcher.Constraint("Equal", 30, 31))
sketch2.addConstraint(Sketcher.Constraint("Equal", 31, 32))
sketch2.addConstraint(Sketcher.Constraint("Equal", 32, 33))
sketch2.addConstraint(Sketcher.Constraint("Equal", 33, 34))
sketch2.addConstraint(Sketcher.Constraint("Equal", 34, 35))
sketch2.addConstraint(Sketcher.Constraint("Equal", 35, 36))
sketch2.addConstraint(Sketcher.Constraint("Equal", 36, 37))
sketch2.addConstraint(Sketcher.Constraint("Equal", 37, 38))
sketch2.addConstraint(Sketcher.Constraint("Equal", 38, 39))
sketch2.addConstraint(Sketcher.Constraint("Equal", 39, 40))
sketch2.addConstraint(Sketcher.Constraint("Equal", 40, 41))
sketch2.addConstraint(Sketcher.Constraint("Equal", 41, 42))
sketch2.addConstraint(Sketcher.Constraint("Equal", 42, 43))
sketch2.addConstraint(Sketcher.Constraint("Equal", 43, 44))
sketch2.addConstraint(Sketcher.Constraint("Equal", 44, 45))
sketch2.addConstraint(Sketcher.Constraint("Equal", 45, 46))
sketch2.addConstraint(Sketcher.Constraint("Equal", 46, 47))
sketch2.addConstraint(Sketcher.Constraint("Equal", 47, 48))
sketch2.addConstraint(Sketcher.Constraint("Equal", 48, 49))
sketch2.addConstraint(Sketcher.Constraint("Equal", 49, 50))
sketch2.addConstraint(Sketcher.Constraint("Equal", 50, 51))
sketch2.addConstraint(Sketcher.Constraint("Equal", 51, 52))
sketch2.addConstraint(Sketcher.Constraint("Equal", 52, 53))
sketch2.addConstraint(Sketcher.Constraint("Equal", 53, 54))
sketch2.addConstraint(Sketcher.Constraint("Equal", 54, 55))
sketch2.addConstraint(Sketcher.Constraint("Equal", 55, 56))
sketch2.addConstraint(Sketcher.Constraint("Equal", 56, 57))
sketch2.addConstraint(Sketcher.Constraint("Equal", 57, 58))
sketch2.addConstraint(Sketcher.Constraint("Equal", 58, 59))
sketch2.addConstraint(Sketcher.Constraint("Equal", 59, 60))
sketch2.addConstraint(Sketcher.Constraint("Equal", 60, 61))
sketch2.addConstraint(Sketcher.Constraint("Equal", 61, 62))
sketch2.addConstraint(Sketcher.Constraint("Equal", 62, 63))
sketch2.addConstraint(Sketcher.Constraint("Equal", 63, 64))
sketch2.addConstraint(Sketcher.Constraint("Equal", 64, 65))
sketch2.addConstraint(Sketcher.Constraint("Equal", 65, 66))
sketch2.addConstraint(Sketcher.Constraint("Equal", 66, 67))
sketch2.addConstraint(Sketcher.Constraint("Equal", 67, 68))
sketch2.addConstraint(Sketcher.Constraint("Equal", 68, 69))
sketch2.addConstraint(Sketcher.Constraint("Equal", 69, 70))
sketch2.addConstraint(Sketcher.Constraint("Equal", 70, 71))
sketch2.addConstraint(Sketcher.Constraint("Horizontal", 0, 3, 3, 3))
sketch2.addConstraint(Sketcher.Constraint("Horizontal", 1, 3, 4, 3))
sketch2.addConstraint(Sketcher.Constraint("Horizontal", 2, 3, 5, 3))
sketch2.addConstraint(Sketcher.Constraint("Horizontal", 6, 3, 7, 3))
sketch2.addConstraint(Sketcher.Constraint("Horizontal", 8, 3, 9, 3))
sketch2.addConstraint(Sketcher.Constraint("Horizontal", 10, 3, 11, 3))
sketch2.addConstraint(Sketcher.Constraint("Horizontal", 12, 3, 13, 3))
sketch2.addConstraint(Sketcher.Constraint("Horizontal", 14, 3, 15, 3))
sketch2.addConstraint(Sketcher.Constraint("Horizontal", 16, 3, 17, 3))
sketch2.addConstraint(Sketcher.Constraint("Horizontal", 18, 3, 19, 3))
sketch2.addConstraint(Sketcher.Constraint("Horizontal", 20, 3, 21, 3))
sketch2.addConstraint(Sketcher.Constraint("Horizontal", 22, 3, 23, 3))
sketch2.addConstraint(Sketcher.Constraint("Horizontal", 4, 3, 24, 3))
sketch2.addConstraint(Sketcher.Constraint("Horizontal", 24, 3, 25, 3))
sketch2.addConstraint(Sketcher.Constraint("Horizontal", 3, 3, 26, 3))
sketch2.addConstraint(Sketcher.Constraint("Horizontal", 26, 3, 27, 3))
sketch2.addConstraint(Sketcher.Constraint("Horizontal", 5, 3, 28, 3))
sketch2.addConstraint(Sketcher.Constraint("Horizontal", 28, 3, 29, 3))
sketch2.addConstraint(Sketcher.Constraint("Horizontal", 7, 3, 30, 3))
sketch2.addConstraint(Sketcher.Constraint("Horizontal", 30, 3, 31, 3))
sketch2.addConstraint(Sketcher.Constraint("Horizontal", 9, 3, 32, 3))
sketch2.addConstraint(Sketcher.Constraint("Horizontal", 32, 3, 33, 3))
sketch2.addConstraint(Sketcher.Constraint("Horizontal", 11, 3, 34, 3))
sketch2.addConstraint(Sketcher.Constraint("Horizontal", 34, 3, 35, 3))
sketch2.addConstraint(Sketcher.Constraint("Horizontal", 13, 3, 36, 3))
sketch2.addConstraint(Sketcher.Constraint("Horizontal", 36, 3, 37, 3))
sketch2.addConstraint(Sketcher.Constraint("Horizontal", 15, 3, 38, 3))
sketch2.addConstraint(Sketcher.Constraint("Horizontal", 38, 3, 39, 3))
sketch2.addConstraint(Sketcher.Constraint("Horizontal", 17, 3, 40, 3))
sketch2.addConstraint(Sketcher.Constraint("Horizontal", 40, 3, 41, 3))
sketch2.addConstraint(Sketcher.Constraint("Horizontal", 19, 3, 42, 3))
sketch2.addConstraint(Sketcher.Constraint("Horizontal", 42, 3, 43, 3))
sketch2.addConstraint(Sketcher.Constraint("Horizontal", 21, 3, 44, 3))
sketch2.addConstraint(Sketcher.Constraint("Horizontal", 44, 3, 45, 3))
sketch2.addConstraint(Sketcher.Constraint("Horizontal", 23, 3, 46, 3))
sketch2.addConstraint(Sketcher.Constraint("Horizontal", 46, 3, 47, 3))
sketch2.addConstraint(Sketcher.Constraint("Horizontal", 25, 3, 48, 3))
sketch2.addConstraint(Sketcher.Constraint("Horizontal", 48, 3, 49, 3))
sketch2.addConstraint(Sketcher.Constraint("Horizontal", 27, 3, 50, 3))
sketch2.addConstraint(Sketcher.Constraint("Horizontal", 50, 3, 51, 3))
sketch2.addConstraint(Sketcher.Constraint("Horizontal", 29, 3, 52, 3))
sketch2.addConstraint(Sketcher.Constraint("Horizontal", 52, 3, 53, 3))
sketch2.addConstraint(Sketcher.Constraint("Horizontal", 31, 3, 54, 3))
sketch2.addConstraint(Sketcher.Constraint("Horizontal", 54, 3, 55, 3))
sketch2.addConstraint(Sketcher.Constraint("Horizontal", 33, 3, 56, 3))
sketch2.addConstraint(Sketcher.Constraint("Horizontal", 56, 3, 57, 3))
sketch2.addConstraint(Sketcher.Constraint("Horizontal", 35, 3, 58, 3))
sketch2.addConstraint(Sketcher.Constraint("Horizontal", 58, 3, 59, 3))
sketch2.addConstraint(Sketcher.Constraint("Horizontal", 37, 3, 60, 3))
sketch2.addConstraint(Sketcher.Constraint("Horizontal", 60, 3, 61, 3))
sketch2.addConstraint(Sketcher.Constraint("Horizontal", 39, 3, 62, 3))
sketch2.addConstraint(Sketcher.Constraint("Horizontal", 62, 3, 63, 3))
sketch2.addConstraint(Sketcher.Constraint("Horizontal", 41, 3, 64, 3))
sketch2.addConstraint(Sketcher.Constraint("Horizontal", 64, 3, 65, 3))
sketch2.addConstraint(Sketcher.Constraint("Horizontal", 43, 3, 66, 3))
sketch2.addConstraint(Sketcher.Constraint("Horizontal", 66, 3, 67, 3))
sketch2.addConstraint(Sketcher.Constraint("Horizontal", 45, 3, 68, 3))
sketch2.addConstraint(Sketcher.Constraint("Horizontal", 68, 3, 69, 3))
sketch2.addConstraint(Sketcher.Constraint("Horizontal", 47, 3, 70, 3))
sketch2.addConstraint(Sketcher.Constraint("Horizontal", 70, 3, 71, 3))
sketch2.addConstraint(Sketcher.Constraint("Vertical", 0, 3, 1, 3))
sketch2.addConstraint(Sketcher.Constraint("Vertical", 1, 3, 2, 3))
sketch2.addConstraint(Sketcher.Constraint("Vertical", 3, 3, 4, 3))
sketch2.addConstraint(Sketcher.Constraint("Vertical", 4, 3, 5, 3))
sketch2.addConstraint(Sketcher.Constraint("Vertical", 5, 3, 6, 3))
sketch2.addConstraint(Sketcher.Constraint("Vertical", 2, 3, 7, 3))
sketch2.addConstraint(Sketcher.Constraint("Vertical", 6, 3, 8, 3))
sketch2.addConstraint(Sketcher.Constraint("Vertical", 7, 3, 9, 3))
sketch2.addConstraint(Sketcher.Constraint("Vertical", 9, 3, 10, 3))
sketch2.addConstraint(Sketcher.Constraint("Vertical", 8, 3, 11, 3))
sketch2.addConstraint(Sketcher.Constraint("Vertical", 11, 3, 12, 3))
sketch2.addConstraint(Sketcher.Constraint("Vertical", 10, 3, 13, 3))
sketch2.addConstraint(Sketcher.Constraint("Vertical", 12, 3, 14, 3))
sketch2.addConstraint(Sketcher.Constraint("Vertical", 13, 3, 15, 3))
sketch2.addConstraint(Sketcher.Constraint("Vertical", 15, 3, 16, 3))
sketch2.addConstraint(Sketcher.Constraint("Vertical", 14, 3, 17, 3))
sketch2.addConstraint(Sketcher.Constraint("Vertical", 17, 3, 18, 3))
sketch2.addConstraint(Sketcher.Constraint("Vertical", 16, 3, 19, 3))
sketch2.addConstraint(Sketcher.Constraint("Vertical", 18, 3, 20, 3))
sketch2.addConstraint(Sketcher.Constraint("Vertical", 19, 3, 21, 3))
sketch2.addConstraint(Sketcher.Constraint("Vertical", 21, 3, 22, 3))
sketch2.addConstraint(Sketcher.Constraint("Vertical", 20, 3, 23, 3))
sketch2.addConstraint(Sketcher.Constraint("Vertical", 24, 3, 26, 3))
sketch2.addConstraint(Sketcher.Constraint("Vertical", 25, 3, 27, 3))
sketch2.addConstraint(Sketcher.Constraint("Vertical", 27, 3, 28, 3))
sketch2.addConstraint(Sketcher.Constraint("Vertical", 26, 3, 29, 3))
sketch2.addConstraint(Sketcher.Constraint("Vertical", 29, 3, 30, 3))
sketch2.addConstraint(Sketcher.Constraint("Vertical", 28, 3, 31, 3))
sketch2.addConstraint(Sketcher.Constraint("Vertical", 30, 3, 32, 3))
sketch2.addConstraint(Sketcher.Constraint("Vertical", 31, 3, 33, 3))
sketch2.addConstraint(Sketcher.Constraint("Vertical", 33, 3, 34, 3))
sketch2.addConstraint(Sketcher.Constraint("Vertical", 32, 3, 35, 3))
sketch2.addConstraint(Sketcher.Constraint("Vertical", 35, 3, 36, 3))
sketch2.addConstraint(Sketcher.Constraint("Vertical", 34, 3, 37, 3))
sketch2.addConstraint(Sketcher.Constraint("Vertical", 36, 3, 38, 3))
sketch2.addConstraint(Sketcher.Constraint("Vertical", 37, 3, 39, 3))
sketch2.addConstraint(Sketcher.Constraint("Vertical", 39, 3, 40, 3))
sketch2.addConstraint(Sketcher.Constraint("Vertical", 38, 3, 41, 3))
sketch2.addConstraint(Sketcher.Constraint("Vertical", 41, 3, 42, 3))
sketch2.addConstraint(Sketcher.Constraint("Vertical", 40, 3, 43, 3))
sketch2.addConstraint(Sketcher.Constraint("Vertical", 42, 3, 44, 3))
sketch2.addConstraint(Sketcher.Constraint("Vertical", 43, 3, 45, 3))
sketch2.addConstraint(Sketcher.Constraint("Vertical", 45, 3, 46, 3))
sketch2.addConstraint(Sketcher.Constraint("Vertical", 44, 3, 47, 3))
sketch2.addConstraint(Sketcher.Constraint("Vertical", 48, 3, 50, 3))
sketch2.addConstraint(Sketcher.Constraint("Vertical", 49, 3, 51, 3))
sketch2.addConstraint(Sketcher.Constraint("Vertical", 51, 3, 52, 3))
sketch2.addConstraint(Sketcher.Constraint("Vertical", 50, 3, 53, 3))
sketch2.addConstraint(Sketcher.Constraint("Vertical", 53, 3, 54, 3))
sketch2.addConstraint(Sketcher.Constraint("Vertical", 52, 3, 55, 3))
sketch2.addConstraint(Sketcher.Constraint("Vertical", 54, 3, 56, 3))
sketch2.addConstraint(Sketcher.Constraint("Vertical", 55, 3, 57, 3))
sketch2.addConstraint(Sketcher.Constraint("Vertical", 57, 3, 58, 3))
sketch2.addConstraint(Sketcher.Constraint("Vertical", 56, 3, 59, 3))
sketch2.addConstraint(Sketcher.Constraint("Vertical", 59, 3, 60, 3))
sketch2.addConstraint(Sketcher.Constraint("Vertical", 58, 3, 61, 3))
sketch2.addConstraint(Sketcher.Constraint("Vertical", 60, 3, 62, 3))
sketch2.addConstraint(Sketcher.Constraint("Vertical", 61, 3, 63, 3))
sketch2.addConstraint(Sketcher.Constraint("Vertical", 63, 3, 64, 3))
sketch2.addConstraint(Sketcher.Constraint("Vertical", 62, 3, 65, 3))
sketch2.addConstraint(Sketcher.Constraint("Vertical", 65, 3, 66, 3))
sketch2.addConstraint(Sketcher.Constraint("Vertical", 64, 3, 67, 3))
sketch2.addConstraint(Sketcher.Constraint("Vertical", 66, 3, 68, 3))
sketch2.addConstraint(Sketcher.Constraint("Vertical", 67, 3, 69, 3))
sketch2.addConstraint(Sketcher.Constraint("Vertical", 69, 3, 70, 3))
sketch2.addConstraint(Sketcher.Constraint("Vertical", 68, 3, 71, 3))
sketch2.addConstraint(Sketcher.Constraint("Diameter", 0, Q("0.375 in")))
sketch2.addConstraint(Sketcher.Constraint("DistanceX", -1, 1, 0, 3, Q("16 in")))
sketch2.addConstraint(Sketcher.Constraint("DistanceY", -1, 1, 1, 3, Q("2 in")))
sketch2.addConstraint(Sketcher.Constraint("DistanceY", 14, 3, -1, 1, Q("13 in")))
sketch2.addConstraint(Sketcher.Constraint("DistanceY", 16, 3, -1, 1, Q("16 in")))
sketch2.addConstraint(Sketcher.Constraint("DistanceX", -1, 1, 25, 3, Q("2 in")))
sketch2.addConstraint(Sketcher.Constraint("DistanceX", 49, 3, -1, 1, Q("12 in")))
sketch2.addConstraint(Sketcher.Constraint("DistanceY", -1, 1, 0, 3, Q("3.5 in")))
sketch2.addConstraint(Sketcher.Constraint("DistanceY", -1, 1, 2, 3, Q("0.5 in")))
sketch2.addConstraint(Sketcher.Constraint("DistanceX", -1, 1, 3, 3, Q("12.5 in")))
sketch2.addConstraint(Sketcher.Constraint("DistanceY", 12, 3, -1, 1, Q("14.5 in")))
sketch2.addConstraint(Sketcher.Constraint("DistanceX", 24, 3, -1, 1, Q("1.5 in")))
sketch2.addConstraint(Sketcher.Constraint("DistanceX", 48, 3, -1, 1, Q("15.5 in")))
sketch2.addConstraint(Sketcher.Constraint("DistanceY", 6, 3, -1, 1, Q("6.25 in")))
sketch2.addConstraint(Sketcher.Constraint("DistanceY", 8, 3, -1, 1, Q("4.75 in")))
sketch2.addConstraint(Sketcher.Constraint("DistanceY", 10, 3, -1, 1, Q("7.75 in")))
sketch2.addConstraint(Sketcher.Constraint("DistanceY", 18, 3, -1, 1, Q("22.75 in")))
sketch2.addConstraint(Sketcher.Constraint("DistanceY", 20, 3, -1, 1, Q("21.25 in")))
sketch2.addConstraint(Sketcher.Constraint("DistanceY", 22, 3, -1, 1, Q("24.25 in")))
pocket1 = doc.addObject("PartDesign::Pocket", "Pocket")
body.addObject(pocket1)
pocket1.Profile = sketch2
pocket1.Type = "ThroughAll"

doc.recompute()
